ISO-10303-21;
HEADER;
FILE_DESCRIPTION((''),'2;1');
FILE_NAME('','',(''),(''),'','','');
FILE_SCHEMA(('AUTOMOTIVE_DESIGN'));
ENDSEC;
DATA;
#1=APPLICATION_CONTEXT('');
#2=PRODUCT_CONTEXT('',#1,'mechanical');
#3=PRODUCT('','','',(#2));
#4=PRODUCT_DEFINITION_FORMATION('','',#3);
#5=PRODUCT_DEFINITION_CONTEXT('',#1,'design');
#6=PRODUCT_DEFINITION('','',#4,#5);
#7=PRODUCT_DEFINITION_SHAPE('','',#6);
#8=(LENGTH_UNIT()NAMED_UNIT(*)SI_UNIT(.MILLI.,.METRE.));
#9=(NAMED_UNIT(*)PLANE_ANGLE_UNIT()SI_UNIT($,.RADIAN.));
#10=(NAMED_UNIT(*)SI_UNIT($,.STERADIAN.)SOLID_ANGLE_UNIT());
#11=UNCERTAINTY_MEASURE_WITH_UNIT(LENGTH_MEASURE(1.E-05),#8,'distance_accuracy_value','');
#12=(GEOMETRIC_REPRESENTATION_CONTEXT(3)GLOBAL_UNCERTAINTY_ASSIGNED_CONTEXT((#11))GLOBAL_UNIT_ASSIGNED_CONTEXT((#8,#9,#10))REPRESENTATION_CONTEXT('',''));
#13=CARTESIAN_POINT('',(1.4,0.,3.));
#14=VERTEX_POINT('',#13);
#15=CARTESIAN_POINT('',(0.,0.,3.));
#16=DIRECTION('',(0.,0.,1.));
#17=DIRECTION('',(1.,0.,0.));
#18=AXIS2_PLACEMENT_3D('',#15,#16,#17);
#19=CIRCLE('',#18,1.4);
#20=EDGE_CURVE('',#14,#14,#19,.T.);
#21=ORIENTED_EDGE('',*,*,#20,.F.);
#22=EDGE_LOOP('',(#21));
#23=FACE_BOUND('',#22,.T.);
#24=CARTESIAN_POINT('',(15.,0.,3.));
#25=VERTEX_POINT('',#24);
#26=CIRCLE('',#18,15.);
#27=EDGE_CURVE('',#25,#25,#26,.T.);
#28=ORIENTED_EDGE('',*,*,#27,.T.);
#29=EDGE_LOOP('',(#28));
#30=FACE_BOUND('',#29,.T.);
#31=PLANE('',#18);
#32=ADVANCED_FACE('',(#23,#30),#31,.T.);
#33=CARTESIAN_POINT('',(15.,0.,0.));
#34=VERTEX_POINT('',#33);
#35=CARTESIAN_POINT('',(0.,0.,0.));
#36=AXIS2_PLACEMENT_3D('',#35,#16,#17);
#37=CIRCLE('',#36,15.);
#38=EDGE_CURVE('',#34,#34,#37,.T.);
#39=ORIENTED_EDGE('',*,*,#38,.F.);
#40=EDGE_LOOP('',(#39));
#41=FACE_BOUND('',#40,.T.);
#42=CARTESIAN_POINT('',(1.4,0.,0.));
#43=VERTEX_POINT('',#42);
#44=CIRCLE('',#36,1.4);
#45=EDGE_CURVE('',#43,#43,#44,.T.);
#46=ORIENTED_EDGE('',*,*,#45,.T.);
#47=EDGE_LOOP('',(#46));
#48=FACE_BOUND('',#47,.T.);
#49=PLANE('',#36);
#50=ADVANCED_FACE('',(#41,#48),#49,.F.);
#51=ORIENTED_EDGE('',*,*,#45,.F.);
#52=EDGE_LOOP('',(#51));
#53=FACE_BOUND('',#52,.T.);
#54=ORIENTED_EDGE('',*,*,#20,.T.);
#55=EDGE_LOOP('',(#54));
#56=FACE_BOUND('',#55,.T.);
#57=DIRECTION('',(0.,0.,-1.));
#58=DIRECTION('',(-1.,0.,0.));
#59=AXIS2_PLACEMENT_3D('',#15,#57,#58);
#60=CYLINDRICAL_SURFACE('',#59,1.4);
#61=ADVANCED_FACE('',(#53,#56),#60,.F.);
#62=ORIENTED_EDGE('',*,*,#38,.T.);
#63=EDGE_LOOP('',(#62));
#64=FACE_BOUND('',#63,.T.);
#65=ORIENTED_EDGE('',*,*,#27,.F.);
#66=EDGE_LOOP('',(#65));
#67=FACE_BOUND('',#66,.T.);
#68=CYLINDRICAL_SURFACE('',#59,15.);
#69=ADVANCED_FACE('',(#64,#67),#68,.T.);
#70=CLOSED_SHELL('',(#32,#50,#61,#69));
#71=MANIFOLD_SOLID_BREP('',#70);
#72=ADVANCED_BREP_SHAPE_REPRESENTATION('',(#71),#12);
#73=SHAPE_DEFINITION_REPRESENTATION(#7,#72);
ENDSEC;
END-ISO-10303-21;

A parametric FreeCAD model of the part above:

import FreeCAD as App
import Part
import Sketcher
from FreeCAD import Vector
Q = App.Units.Quantity

doc = App.newDocument("Part")
params = doc.addObject("Spreadsheet::Sheet", "Params")
for row, (alias, value) in enumerate([
    ("sketch1_diameter", "30 mm"),
    ("sketch1_diameter2", "2.8 mm"),
    ("pad1_length", "3 mm"),
], start=1):
    params.set(f"A{row}", alias)
    params.set(f"B{row}", "=" + value)
    params.setAlias(f"B{row}", alias)

body = doc.addObject("PartDesign::Body", "Body")

sketch1 = body.newObject("Sketcher::SketchObject", "Sketch")
sketch1.AttachmentSupport = (doc.getObject("XY_Plane"), [""])
sketch1.MapMode = "FlatFace"
sketch1.addGeometry(Part.Circle(Vector(0, 0, 0), Vector(0, 0, 1), 15), False)
sketch1.addGeometry(Part.Circle(Vector(0, 0, 0), Vector(0, 0, 1), 1.4), False)
sketch1.addConstraint(Sketcher.Constraint("Coincident", 0, 3, -1, 1))
sketch1.addConstraint(Sketcher.Constraint("Coincident", 1, 3, -1, 1))
sketch1.addConstraint(Sketcher.Constraint("Diameter", 0, Q("30 mm")))
sketch1.addConstraint(Sketcher.Constraint("Diameter", 1, Q("2.8 mm")))
sketch1.setExpression("Constraints[2]", "Params.sketch1_diameter")
sketch1.setExpression("Constraints[3]", "Params.sketch1_diameter2")
pad1 = body.newObject("PartDesign::Pad", "Pad")
pad1.Profile = sketch1
pad1.setExpression("Length", "Params.pad1_length")

doc.recompute()
